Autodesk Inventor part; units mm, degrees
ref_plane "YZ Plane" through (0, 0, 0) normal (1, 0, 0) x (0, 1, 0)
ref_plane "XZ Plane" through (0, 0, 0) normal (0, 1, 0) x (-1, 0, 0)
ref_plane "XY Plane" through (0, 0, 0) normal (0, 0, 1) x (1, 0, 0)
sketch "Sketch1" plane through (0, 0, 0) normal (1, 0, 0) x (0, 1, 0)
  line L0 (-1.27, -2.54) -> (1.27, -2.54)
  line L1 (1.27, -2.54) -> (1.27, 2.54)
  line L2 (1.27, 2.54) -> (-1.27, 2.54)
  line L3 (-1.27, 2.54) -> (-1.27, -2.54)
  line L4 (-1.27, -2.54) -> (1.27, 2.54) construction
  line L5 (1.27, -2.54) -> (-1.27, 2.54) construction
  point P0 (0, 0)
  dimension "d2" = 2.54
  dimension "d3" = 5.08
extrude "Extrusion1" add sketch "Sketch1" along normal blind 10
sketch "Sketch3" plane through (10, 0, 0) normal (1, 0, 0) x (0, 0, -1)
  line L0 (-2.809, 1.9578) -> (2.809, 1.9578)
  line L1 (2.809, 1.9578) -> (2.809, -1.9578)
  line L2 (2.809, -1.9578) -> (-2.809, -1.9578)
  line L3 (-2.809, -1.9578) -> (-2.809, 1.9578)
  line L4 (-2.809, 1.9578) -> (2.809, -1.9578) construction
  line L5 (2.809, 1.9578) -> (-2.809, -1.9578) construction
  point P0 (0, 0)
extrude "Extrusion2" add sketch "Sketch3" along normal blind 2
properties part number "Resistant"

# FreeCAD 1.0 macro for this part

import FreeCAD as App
import Part
import Sketcher
from FreeCAD import Vector
Q = App.Units.Quantity


def add_polygon(sketch, points):
    """Adds a closed chain of lines whose ends are joined by coincident constraints."""
    first, n = sketch.GeometryCount, len(points)
    for a, b in zip(points, points[1:] + points[:1]):
        sketch.addGeometry(Part.LineSegment(App.Vector(*a, 0), App.Vector(*b, 0)), False)
    for i in range(n):
        sketch.addConstraint(Sketcher.Constraint("Coincident", first + i, 2, first + (i + 1) % n, 1))

doc = App.newDocument("Part")
body = doc.addObject("PartDesign::Body", "Body")

# Sketch on YZ plane
sketch1 = body.newObject("Sketcher::SketchObject", "Sketch")
sketch1.AttachmentSupport = (doc.getObject("YZ_Plane"), [""])
sketch1.MapMode = "FlatFace"
add_polygon(sketch1, [(-1.3, 2.5), (-1.3, -2.5), (1.3, -2.5), (1.3, 2.5)])  # lines 0-3
sketch1.addConstraint(Sketcher.Constraint("Vertical", 0))
sketch1.addConstraint(Sketcher.Constraint("Horizontal", 1))
sketch1.addConstraint(Sketcher.Constraint("Vertical", 2))
sketch1.addConstraint(Sketcher.Constraint("Horizontal", 3))
sketch1.addConstraint(Sketcher.Constraint("Symmetric", 0, 2, 2, 2, -1, 1))
sketch1.addConstraint(Sketcher.Constraint("DistanceX", 1, 1, 1, 2, Q("0.1 in")))
sketch1.addConstraint(Sketcher.Constraint("DistanceY", 0, 2, 0, 1, Q("0.2 in")))
pad1 = body.newObject("PartDesign::Pad", "Pad")
pad1.Profile = sketch1
pad1.Length = Q("0.3937008 in")

# Sketch on YZ plane
sketch2 = body.newObject("Sketcher::SketchObject", "Sketch001")
sketch2.AttachmentSupport = (doc.getObject("YZ_Plane"), [""])
sketch2.MapMode = "FlatFace"
sketch2.AttachmentOffset = App.Placement(Vector(0, 0, 0.3937008 * 25.4), App.Rotation())
add_polygon(sketch2, [(2, -2.8), (2, 2.8), (-2, 2.8), (-2, -2.8)])  # lines 0-3
sketch2.addConstraint(Sketcher.Constraint("Vertical", 0))
sketch2.addConstraint(Sketcher.Constraint("Horizontal", 1))
sketch2.addConstraint(Sketcher.Constraint("Vertical", 2))
sketch2.addConstraint(Sketcher.Constraint("Horizontal", 3))
sketch2.addConstraint(Sketcher.Constraint("Symmetric", 0, 2, 2, 2, -1, 1))
sketch2.addConstraint(Sketcher.Constraint("DistanceX", 1, 2, 1, 1, Q("3.9156 mm")))
sketch2.addConstraint(Sketcher.Constraint("DistanceY", 0, 1, 0, 2, Q("5.618 mm")))
pad2 = body.newObject("PartDesign::Pad", "Pad001")
pad2.Profile = sketch2
pad2.Length = 2

doc.recompute()
